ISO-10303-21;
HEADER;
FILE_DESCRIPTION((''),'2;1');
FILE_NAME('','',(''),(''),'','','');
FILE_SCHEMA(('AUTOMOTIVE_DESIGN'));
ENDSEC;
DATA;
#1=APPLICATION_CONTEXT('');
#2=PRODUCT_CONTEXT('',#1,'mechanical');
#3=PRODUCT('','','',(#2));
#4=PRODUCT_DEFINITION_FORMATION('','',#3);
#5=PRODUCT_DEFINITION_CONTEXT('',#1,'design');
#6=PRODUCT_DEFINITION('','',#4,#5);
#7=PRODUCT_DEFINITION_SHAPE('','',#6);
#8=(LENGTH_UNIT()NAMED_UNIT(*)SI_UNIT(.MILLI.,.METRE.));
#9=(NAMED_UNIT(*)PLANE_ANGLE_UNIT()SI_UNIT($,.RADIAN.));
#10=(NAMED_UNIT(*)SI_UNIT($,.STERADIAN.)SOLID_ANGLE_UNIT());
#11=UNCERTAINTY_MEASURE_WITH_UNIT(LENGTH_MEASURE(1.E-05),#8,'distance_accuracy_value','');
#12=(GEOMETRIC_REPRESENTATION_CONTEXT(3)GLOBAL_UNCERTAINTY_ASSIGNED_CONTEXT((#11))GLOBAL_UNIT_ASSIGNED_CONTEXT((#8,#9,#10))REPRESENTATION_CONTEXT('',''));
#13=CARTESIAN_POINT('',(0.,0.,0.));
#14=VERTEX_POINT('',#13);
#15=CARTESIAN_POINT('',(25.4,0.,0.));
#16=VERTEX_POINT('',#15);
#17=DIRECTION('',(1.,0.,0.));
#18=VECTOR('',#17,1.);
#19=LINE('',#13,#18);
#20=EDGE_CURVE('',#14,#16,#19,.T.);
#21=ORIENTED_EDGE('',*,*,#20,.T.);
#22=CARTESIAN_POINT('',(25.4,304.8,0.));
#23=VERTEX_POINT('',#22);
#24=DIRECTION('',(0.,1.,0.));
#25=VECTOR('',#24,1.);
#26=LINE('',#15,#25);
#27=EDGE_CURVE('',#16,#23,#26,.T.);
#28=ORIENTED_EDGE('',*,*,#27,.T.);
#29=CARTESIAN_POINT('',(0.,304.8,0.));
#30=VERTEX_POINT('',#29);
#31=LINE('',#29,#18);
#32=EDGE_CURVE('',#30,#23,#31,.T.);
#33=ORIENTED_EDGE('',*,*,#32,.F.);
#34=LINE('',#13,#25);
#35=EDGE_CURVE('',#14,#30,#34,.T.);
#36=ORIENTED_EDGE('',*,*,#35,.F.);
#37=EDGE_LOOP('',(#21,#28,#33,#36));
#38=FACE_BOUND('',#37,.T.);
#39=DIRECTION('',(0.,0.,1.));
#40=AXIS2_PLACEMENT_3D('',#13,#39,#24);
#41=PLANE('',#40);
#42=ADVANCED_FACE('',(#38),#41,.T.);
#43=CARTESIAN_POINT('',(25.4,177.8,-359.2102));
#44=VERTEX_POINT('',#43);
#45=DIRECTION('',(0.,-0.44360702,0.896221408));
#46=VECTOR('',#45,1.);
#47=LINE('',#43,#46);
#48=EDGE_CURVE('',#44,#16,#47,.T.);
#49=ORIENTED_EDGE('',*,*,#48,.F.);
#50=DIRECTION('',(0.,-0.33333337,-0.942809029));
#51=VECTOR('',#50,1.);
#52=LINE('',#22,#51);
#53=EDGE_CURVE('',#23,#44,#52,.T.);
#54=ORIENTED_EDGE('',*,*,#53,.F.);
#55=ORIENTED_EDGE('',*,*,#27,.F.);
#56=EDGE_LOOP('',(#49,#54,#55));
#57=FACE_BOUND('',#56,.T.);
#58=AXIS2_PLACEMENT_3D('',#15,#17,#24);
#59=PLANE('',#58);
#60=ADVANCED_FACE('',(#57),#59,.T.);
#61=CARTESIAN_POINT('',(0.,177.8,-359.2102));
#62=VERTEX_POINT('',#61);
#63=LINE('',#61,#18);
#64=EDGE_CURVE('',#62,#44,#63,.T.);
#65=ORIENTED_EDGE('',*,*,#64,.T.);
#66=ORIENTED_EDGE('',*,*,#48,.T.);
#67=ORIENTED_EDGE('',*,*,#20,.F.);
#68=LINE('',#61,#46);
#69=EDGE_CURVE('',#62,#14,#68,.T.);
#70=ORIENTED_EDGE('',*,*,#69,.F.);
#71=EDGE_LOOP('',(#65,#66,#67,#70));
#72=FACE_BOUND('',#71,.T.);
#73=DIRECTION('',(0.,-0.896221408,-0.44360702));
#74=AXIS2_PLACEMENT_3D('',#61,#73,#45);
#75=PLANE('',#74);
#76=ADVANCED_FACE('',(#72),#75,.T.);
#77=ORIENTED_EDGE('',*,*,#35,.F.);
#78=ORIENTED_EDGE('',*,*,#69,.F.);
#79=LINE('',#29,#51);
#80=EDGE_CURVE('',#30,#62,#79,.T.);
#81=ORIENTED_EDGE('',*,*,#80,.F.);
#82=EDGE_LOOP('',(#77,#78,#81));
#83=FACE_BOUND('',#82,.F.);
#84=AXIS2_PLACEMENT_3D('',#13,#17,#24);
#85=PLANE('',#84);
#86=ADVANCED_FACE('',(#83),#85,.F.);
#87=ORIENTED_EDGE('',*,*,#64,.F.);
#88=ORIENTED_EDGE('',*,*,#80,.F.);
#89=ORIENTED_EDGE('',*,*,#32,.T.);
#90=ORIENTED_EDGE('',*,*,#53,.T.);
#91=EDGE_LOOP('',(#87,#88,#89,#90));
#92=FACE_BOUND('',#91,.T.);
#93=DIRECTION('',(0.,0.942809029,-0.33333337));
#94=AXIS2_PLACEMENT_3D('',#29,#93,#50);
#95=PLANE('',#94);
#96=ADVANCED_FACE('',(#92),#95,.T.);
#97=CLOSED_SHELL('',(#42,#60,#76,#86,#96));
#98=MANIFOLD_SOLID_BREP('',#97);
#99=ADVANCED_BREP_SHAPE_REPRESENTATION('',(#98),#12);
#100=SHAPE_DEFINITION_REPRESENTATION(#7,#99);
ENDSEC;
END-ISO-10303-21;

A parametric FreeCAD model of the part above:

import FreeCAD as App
import Part
import Sketcher
from FreeCAD import Vector
Q = App.Units.Quantity


def add_polygon(sketch, points):
    """Adds a closed chain of lines whose ends are joined by coincident constraints."""
    first, n = sketch.GeometryCount, len(points)
    for a, b in zip(points, points[1:] + points[:1]):
        sketch.addGeometry(Part.LineSegment(App.Vector(*a, 0), App.Vector(*b, 0)), False)
    for i in range(n):
        sketch.addConstraint(Sketcher.Constraint("Coincident", first + i, 2, first + (i + 1) % n, 1))

doc = App.newDocument("Part")
body = doc.addObject("PartDesign::Body", "Body")

sketch1 = body.newObject("Sketcher::SketchObject", "Sketch")
sketch1.AttachmentSupport = (doc.getObject("YZ_Plane"), [""])
sketch1.MapMode = "FlatFace"
add_polygon(sketch1, [(305, 0), (0, 0), (178, -359)])
sketch1.addConstraint(Sketcher.Constraint("Horizontal", 0))
sketch1.addConstraint(Sketcher.Constraint("Coincident", 0, 2, -1, 1))
sketch1.addConstraint(Sketcher.Constraint("DistanceX", 0, 2, 0, 1, Q("12 in")))
sketch1.addConstraint(Sketcher.Constraint("Distance", 2, Q("15 in")))
sketch1.addConstraint(Sketcher.Constraint("DistanceX", -1, 1, 1, 2, Q("7 in")))
pad1 = body.newObject("PartDesign::Pad", "Pad")
pad1.Profile = sketch1
pad1.Length = Q("1 in")

doc.recompute()
